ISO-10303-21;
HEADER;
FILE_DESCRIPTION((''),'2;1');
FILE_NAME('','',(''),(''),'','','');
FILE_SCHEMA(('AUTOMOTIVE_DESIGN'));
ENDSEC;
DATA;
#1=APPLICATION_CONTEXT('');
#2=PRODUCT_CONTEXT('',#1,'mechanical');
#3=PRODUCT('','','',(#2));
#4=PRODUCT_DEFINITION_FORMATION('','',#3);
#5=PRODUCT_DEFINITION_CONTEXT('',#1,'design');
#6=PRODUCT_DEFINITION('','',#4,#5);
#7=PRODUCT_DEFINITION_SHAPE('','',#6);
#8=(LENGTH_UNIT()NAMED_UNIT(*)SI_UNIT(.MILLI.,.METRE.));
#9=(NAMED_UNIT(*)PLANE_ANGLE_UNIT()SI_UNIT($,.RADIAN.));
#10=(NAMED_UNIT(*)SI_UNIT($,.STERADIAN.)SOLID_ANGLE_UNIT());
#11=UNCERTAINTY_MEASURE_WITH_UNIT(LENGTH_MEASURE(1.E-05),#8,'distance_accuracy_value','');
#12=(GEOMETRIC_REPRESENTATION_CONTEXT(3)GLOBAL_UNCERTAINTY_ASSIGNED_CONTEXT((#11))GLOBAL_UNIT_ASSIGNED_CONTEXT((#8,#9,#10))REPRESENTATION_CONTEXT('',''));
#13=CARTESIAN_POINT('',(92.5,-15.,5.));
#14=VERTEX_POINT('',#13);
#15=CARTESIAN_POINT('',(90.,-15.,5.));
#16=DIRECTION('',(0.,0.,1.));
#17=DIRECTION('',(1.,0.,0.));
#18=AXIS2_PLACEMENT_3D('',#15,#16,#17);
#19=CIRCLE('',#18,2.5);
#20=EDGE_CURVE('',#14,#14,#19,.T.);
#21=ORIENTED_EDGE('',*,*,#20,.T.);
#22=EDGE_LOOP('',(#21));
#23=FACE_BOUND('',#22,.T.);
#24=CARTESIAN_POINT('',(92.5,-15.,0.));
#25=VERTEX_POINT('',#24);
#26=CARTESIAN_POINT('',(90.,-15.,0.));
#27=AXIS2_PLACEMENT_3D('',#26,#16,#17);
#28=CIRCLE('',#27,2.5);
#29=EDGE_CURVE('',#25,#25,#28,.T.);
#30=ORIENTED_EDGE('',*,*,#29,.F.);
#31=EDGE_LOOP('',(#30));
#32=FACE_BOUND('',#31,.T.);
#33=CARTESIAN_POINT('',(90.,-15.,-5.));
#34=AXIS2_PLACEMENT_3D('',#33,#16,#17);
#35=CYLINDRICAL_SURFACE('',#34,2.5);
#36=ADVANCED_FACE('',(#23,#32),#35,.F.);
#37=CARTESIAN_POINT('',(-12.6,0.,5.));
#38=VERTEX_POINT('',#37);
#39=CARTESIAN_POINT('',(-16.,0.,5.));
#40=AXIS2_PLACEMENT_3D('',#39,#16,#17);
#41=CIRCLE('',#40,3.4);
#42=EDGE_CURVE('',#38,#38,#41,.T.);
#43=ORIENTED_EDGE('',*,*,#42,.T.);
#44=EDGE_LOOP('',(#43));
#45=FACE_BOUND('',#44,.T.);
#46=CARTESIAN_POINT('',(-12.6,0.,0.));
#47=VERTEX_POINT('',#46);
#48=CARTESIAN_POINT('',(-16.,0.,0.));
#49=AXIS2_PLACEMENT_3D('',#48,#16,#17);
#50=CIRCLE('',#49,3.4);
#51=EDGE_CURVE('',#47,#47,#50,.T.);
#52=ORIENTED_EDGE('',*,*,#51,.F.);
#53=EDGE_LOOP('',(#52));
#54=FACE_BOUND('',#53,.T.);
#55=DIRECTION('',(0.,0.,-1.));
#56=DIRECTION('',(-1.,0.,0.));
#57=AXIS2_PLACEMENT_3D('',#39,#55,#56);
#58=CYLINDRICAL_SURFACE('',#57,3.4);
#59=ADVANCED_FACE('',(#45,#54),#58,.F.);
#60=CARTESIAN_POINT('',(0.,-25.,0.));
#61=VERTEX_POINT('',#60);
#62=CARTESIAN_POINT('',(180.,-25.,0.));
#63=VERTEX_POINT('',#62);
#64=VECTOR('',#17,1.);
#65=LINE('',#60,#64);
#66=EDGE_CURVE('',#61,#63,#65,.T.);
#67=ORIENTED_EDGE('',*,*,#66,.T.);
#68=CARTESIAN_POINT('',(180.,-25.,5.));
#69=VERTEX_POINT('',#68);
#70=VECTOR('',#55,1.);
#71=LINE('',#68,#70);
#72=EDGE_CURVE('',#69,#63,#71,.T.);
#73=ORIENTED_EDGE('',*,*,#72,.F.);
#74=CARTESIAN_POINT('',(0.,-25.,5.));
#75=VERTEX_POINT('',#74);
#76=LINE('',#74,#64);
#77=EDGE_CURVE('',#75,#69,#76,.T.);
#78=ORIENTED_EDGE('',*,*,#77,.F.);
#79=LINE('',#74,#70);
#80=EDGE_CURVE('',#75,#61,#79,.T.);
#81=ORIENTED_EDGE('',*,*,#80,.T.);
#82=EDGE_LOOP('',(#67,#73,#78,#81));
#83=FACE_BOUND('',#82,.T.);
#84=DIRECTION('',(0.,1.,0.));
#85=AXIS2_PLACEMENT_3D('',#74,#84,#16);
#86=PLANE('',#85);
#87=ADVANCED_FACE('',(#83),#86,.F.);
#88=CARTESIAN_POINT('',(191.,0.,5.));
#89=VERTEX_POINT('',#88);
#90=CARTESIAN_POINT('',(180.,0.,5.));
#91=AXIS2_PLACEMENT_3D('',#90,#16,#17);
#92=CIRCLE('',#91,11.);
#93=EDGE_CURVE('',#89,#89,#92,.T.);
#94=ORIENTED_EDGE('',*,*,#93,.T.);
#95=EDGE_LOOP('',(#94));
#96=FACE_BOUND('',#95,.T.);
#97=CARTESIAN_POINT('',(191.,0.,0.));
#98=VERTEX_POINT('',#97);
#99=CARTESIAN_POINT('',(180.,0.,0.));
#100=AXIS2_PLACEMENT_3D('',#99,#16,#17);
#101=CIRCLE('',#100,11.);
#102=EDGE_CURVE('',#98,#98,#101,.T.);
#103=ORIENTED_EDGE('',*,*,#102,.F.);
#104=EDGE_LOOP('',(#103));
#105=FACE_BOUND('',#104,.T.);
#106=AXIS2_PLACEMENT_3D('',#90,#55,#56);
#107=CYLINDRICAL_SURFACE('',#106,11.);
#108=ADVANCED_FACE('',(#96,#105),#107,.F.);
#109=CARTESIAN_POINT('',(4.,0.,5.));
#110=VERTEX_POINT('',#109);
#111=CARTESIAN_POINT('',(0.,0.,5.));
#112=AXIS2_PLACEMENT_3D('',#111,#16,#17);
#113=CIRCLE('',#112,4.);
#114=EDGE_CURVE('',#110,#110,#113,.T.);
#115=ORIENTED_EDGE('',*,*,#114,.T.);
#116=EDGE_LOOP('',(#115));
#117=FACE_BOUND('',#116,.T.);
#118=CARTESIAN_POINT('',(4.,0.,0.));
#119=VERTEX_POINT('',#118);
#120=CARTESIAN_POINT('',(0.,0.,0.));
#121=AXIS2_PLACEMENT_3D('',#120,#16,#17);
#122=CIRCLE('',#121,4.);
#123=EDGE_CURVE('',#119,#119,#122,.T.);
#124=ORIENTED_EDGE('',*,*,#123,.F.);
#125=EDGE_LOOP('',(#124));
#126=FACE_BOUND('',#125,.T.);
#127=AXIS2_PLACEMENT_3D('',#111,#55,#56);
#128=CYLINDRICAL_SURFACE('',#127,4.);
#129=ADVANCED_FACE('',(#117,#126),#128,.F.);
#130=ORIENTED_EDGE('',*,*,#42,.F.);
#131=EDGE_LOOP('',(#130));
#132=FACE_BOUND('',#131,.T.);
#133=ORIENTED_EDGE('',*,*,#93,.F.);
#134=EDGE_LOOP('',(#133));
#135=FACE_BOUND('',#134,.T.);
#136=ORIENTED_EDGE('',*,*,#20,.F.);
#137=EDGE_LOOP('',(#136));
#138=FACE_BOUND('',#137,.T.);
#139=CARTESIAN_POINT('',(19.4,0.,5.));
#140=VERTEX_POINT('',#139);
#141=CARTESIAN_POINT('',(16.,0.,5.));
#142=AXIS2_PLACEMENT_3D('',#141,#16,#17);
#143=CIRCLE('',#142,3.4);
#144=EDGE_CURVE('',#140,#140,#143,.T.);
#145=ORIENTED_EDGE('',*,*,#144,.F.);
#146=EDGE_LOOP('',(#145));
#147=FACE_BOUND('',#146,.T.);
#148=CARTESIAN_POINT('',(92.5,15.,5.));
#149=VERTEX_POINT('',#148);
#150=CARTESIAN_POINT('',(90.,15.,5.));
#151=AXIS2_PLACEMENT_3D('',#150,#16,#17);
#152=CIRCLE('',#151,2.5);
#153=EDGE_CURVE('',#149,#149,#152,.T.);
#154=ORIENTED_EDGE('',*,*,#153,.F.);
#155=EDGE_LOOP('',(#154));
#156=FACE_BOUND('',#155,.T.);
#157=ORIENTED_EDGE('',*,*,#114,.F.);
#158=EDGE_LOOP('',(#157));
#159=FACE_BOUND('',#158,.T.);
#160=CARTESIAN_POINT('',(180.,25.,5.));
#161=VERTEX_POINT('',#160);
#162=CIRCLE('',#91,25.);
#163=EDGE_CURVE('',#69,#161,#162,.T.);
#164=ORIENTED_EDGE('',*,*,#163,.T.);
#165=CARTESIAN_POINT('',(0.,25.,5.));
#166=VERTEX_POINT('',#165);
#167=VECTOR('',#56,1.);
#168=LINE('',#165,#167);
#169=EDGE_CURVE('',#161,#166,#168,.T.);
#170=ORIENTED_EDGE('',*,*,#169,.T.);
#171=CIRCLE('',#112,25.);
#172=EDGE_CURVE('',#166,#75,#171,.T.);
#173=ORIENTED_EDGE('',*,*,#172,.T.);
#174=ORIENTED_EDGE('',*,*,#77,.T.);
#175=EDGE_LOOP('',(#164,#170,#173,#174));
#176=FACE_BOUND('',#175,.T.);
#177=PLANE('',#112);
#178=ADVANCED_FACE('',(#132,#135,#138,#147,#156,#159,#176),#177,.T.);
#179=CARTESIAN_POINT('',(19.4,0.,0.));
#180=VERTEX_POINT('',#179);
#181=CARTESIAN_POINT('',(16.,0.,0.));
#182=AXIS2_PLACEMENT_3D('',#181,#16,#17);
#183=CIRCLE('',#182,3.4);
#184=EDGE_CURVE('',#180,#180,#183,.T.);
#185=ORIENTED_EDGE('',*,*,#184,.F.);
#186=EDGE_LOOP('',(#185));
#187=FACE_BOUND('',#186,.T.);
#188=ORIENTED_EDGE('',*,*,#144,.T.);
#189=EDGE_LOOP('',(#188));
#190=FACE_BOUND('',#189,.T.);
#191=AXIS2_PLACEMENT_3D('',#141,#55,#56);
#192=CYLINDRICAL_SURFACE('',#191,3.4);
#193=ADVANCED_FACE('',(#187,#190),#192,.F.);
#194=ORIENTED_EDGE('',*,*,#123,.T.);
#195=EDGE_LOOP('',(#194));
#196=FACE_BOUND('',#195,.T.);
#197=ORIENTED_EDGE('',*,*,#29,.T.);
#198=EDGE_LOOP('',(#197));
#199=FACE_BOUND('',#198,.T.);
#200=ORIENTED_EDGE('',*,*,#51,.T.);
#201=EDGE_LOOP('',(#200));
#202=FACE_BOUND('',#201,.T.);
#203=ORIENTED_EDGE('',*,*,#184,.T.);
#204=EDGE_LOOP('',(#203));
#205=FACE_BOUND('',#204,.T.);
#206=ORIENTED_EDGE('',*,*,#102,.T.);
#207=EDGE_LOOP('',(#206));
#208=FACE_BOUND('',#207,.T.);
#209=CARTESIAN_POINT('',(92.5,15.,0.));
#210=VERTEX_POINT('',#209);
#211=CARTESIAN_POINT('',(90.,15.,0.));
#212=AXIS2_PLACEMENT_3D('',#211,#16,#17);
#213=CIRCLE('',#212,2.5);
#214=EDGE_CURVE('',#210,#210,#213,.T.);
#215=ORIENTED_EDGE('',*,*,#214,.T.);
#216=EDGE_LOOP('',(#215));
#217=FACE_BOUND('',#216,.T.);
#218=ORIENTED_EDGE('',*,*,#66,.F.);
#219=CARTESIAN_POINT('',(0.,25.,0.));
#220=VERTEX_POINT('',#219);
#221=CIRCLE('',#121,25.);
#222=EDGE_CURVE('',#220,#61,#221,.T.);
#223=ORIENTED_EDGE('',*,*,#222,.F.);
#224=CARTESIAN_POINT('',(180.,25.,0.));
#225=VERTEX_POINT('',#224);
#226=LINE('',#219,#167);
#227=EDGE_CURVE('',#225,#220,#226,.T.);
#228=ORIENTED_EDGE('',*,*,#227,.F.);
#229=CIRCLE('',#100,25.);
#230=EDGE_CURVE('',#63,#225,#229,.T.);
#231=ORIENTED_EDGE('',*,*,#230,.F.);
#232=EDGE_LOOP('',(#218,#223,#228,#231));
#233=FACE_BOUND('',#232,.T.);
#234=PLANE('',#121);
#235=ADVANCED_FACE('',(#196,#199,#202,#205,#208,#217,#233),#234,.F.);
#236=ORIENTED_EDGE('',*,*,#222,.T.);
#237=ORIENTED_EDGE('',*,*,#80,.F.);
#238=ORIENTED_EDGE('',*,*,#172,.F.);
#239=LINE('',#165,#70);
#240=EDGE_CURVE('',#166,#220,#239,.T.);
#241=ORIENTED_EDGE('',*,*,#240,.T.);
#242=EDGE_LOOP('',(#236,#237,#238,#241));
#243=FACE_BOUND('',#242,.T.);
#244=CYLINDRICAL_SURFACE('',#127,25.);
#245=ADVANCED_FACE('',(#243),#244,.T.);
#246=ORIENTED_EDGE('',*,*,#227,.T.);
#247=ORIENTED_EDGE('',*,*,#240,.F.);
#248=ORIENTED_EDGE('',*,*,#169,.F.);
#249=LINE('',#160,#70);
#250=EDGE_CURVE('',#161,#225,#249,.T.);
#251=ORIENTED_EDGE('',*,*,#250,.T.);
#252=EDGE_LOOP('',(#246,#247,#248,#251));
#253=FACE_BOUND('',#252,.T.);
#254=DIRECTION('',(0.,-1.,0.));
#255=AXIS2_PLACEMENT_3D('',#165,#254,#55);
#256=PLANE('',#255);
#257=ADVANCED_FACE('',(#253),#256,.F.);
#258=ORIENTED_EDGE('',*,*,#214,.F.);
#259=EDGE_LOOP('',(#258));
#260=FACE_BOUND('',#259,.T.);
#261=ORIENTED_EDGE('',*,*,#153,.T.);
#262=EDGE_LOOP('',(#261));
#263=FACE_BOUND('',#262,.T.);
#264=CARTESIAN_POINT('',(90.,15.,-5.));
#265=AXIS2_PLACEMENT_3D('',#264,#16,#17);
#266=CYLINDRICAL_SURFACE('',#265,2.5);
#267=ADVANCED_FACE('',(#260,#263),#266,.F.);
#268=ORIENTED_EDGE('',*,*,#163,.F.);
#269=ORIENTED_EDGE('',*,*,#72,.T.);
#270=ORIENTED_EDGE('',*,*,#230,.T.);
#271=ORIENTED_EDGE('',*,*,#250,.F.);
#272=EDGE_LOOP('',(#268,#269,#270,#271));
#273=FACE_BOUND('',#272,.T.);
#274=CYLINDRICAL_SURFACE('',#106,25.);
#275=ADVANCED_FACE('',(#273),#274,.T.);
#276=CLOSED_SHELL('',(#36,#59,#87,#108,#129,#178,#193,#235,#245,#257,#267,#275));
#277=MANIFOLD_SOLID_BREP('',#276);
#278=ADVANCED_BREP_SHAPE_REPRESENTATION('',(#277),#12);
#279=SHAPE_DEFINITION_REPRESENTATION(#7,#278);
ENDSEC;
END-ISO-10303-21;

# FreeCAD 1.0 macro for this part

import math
import FreeCAD as App
import Part
import Sketcher

doc = App.newDocument("Part")
params = doc.addObject("Spreadsheet::Sheet", "Params")
for row, (alias, value) in enumerate([
    ("sketch1_diameter", "22 mm"),
    ("sketch1_diameter2", "8 mm"),
    ("sketch1_radius", "25 mm"),
    ("sketch1_diameter3", "6.8 mm"),
    ("sketch1_width", "180 mm"),
    ("pad1_length", "5 mm"),
    ("sketch2_diameter", "5 mm"),
    ("pocket1_length", "10 mm"),
], start=1):
    params.set(f"A{row}", alias)
    params.set(f"B{row}", "=" + value)
    params.setAlias(f"B{row}", alias)

body = doc.addObject("PartDesign::Body", "Body")

# Sketch on XY plane
sketch1 = body.newObject("Sketcher::SketchObject", "Sketch")
sketch1.AttachmentSupport = (doc.getObject("XY_Plane"), [""])
sketch1.MapMode = "FlatFace"
sketch1.addGeometry([
    Part.LineSegment(App.Vector(180, 25, 0), App.Vector(0, 25, 0)),  # 0
    Part.ArcOfCircle(Part.Circle(App.Vector(0, 0, 0), App.Vector(0, 0, 1), 25), math.radians(90), math.radians(270)),  # 1
    Part.LineSegment(App.Vector(0, -25, 0), App.Vector(180, -25, 0)),  # 2
    Part.ArcOfCircle(Part.Circle(App.Vector(180, 0, 0), App.Vector(0, 0, 1), 25), math.radians(-90), math.radians(90)),  # 3
    Part.Circle(App.Vector(180, 0, 0), App.Vector(0, 0, 1), 11),  # 4
    Part.Circle(App.Vector(16, 0, 0), App.Vector(0, 0, 1), 3.4),  # 5
    Part.Circle(App.Vector(0, 0, 0), App.Vector(0, 0, 1), 4),  # 6
    Part.Circle(App.Vector(-16, 0, 0), App.Vector(0, 0, 1), 3.4),  # 7
], False)
sketch1.addConstraint([
    Sketcher.Constraint("Tangent", 0, 2, 1, 1),
    Sketcher.Constraint("Tangent", 1, 2, 2, 1),
    Sketcher.Constraint("Tangent", 2, 2, 3, 1),
    Sketcher.Constraint("Tangent", 3, 2, 0, 1),
    Sketcher.Constraint("Horizontal", 0),
    Sketcher.Constraint("Horizontal", 2),
    Sketcher.Constraint("Coincident", 1, 3, -1, 1),
    Sketcher.Constraint("Coincident", 6, 3, -1, 1),
    Sketcher.Constraint("Coincident", 4, 3, 3, 3),
    Sketcher.Constraint("Equal", 5, 7),
    Sketcher.Constraint("Symmetric", 5, 3, 7, 3, -1, 1),
    Sketcher.Constraint("PointOnObject", 5, 3, -1),
    Sketcher.Constraint("Diameter", 4, 22.0),
    Sketcher.Constraint("Diameter", 6, 8.0),
    Sketcher.Constraint("Radius", 1, 25.0),
    Sketcher.Constraint("Diameter", 5, 6.8),
    Sketcher.Constraint("DistanceX", 0, 2, 0, 1, 180.0),
    Sketcher.Constraint("DistanceX", -1, 1, 5, 3, 16.0),
])
sketch1.setExpression("Constraints[12]", "Params.sketch1_diameter")
sketch1.setExpression("Constraints[13]", "Params.sketch1_diameter2")
sketch1.setExpression("Constraints[14]", "Params.sketch1_radius")
sketch1.setExpression("Constraints[15]", "Params.sketch1_diameter3")
sketch1.setExpression("Constraints[16]", "Params.sketch1_width")
pad1 = body.newObject("PartDesign::Pad", "Pad")
pad1.Profile = sketch1
pad1.setExpression("Length", "Params.pad1_length")

# Sketch on XY plane
sketch2 = body.newObject("Sketcher::SketchObject", "Sketch001")
sketch2.AttachmentSupport = (doc.getObject("XY_Plane"), [""])
sketch2.MapMode = "FlatFace"
sketch2.AttachmentOffset = App.Placement(App.Vector(0, 0, 5), App.Rotation())
sketch2.addGeometry([
    Part.Circle(App.Vector(90, 15, 0), App.Vector(0, 0, 1), 2.5),
    Part.Circle(App.Vector(90, -15, 0), App.Vector(0, 0, 1), 2.5),
], False)
sketch2.addConstraint([
    Sketcher.Constraint("Equal", 0, 1),
    Sketcher.Constraint("Symmetric", 0, 3, 1, 3, -1),
    Sketcher.Constraint("Diameter", 0, 5.0),
    Sketcher.Constraint("DistanceX", -1, 1, 0, 3, 90.0),
    Sketcher.Constraint("DistanceY", -1, 1, 0, 3, 15.0),
])
sketch2.setExpression("Constraints[2]", "Params.sketch2_diameter")
pocket1 = body.newObject("PartDesign::Pocket", "Pocket")
pocket1.Profile = sketch2
pocket1.setExpression("Length", "Params.pocket1_length")

doc.recompute()
